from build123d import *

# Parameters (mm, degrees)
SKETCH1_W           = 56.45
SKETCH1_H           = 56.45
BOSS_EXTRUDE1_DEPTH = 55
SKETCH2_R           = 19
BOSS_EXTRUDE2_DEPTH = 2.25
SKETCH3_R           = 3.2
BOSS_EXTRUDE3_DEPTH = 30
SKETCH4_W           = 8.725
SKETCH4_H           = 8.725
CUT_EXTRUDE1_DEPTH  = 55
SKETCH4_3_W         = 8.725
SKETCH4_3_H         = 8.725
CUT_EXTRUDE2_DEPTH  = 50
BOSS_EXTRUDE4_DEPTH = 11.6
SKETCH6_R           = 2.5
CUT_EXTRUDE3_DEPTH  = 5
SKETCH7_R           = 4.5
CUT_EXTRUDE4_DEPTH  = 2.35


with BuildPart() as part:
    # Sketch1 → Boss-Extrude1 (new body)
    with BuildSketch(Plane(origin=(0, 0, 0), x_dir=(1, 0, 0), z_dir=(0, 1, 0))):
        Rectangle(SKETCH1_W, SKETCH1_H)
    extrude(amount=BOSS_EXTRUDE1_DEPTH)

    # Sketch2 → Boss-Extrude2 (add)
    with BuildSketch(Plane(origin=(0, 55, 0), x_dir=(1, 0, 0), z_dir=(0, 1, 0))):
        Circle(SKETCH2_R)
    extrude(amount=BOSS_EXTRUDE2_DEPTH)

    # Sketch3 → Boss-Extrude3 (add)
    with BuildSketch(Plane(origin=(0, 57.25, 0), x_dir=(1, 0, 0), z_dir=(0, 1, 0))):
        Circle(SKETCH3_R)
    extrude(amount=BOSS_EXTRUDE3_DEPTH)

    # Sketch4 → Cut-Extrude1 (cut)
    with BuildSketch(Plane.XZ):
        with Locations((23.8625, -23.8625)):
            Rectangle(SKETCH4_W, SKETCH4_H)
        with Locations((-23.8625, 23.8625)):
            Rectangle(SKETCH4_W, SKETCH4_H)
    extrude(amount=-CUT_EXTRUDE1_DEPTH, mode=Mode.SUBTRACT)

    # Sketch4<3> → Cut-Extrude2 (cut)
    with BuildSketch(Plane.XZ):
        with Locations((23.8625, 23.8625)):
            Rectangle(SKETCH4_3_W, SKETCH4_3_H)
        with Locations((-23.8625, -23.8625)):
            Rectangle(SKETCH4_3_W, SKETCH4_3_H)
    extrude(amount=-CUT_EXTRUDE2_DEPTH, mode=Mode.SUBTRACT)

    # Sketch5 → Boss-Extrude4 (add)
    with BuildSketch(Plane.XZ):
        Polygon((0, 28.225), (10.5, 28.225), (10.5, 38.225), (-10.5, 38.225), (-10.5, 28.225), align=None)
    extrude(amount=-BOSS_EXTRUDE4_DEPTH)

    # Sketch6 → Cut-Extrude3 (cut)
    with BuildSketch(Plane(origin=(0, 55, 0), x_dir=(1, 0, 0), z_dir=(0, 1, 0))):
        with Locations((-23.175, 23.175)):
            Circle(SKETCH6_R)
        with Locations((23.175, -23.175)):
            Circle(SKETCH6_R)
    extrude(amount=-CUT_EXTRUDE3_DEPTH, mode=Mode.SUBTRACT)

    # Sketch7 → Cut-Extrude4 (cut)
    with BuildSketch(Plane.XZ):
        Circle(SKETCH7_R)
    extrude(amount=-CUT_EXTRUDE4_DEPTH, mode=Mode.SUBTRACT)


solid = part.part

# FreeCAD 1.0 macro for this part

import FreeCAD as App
import Part
import Sketcher
Q = App.Units.Quantity

doc = App.newDocument("Part")
body = doc.addObject("PartDesign::Body", "Body")

# Sketch on XZ plane
sketch1 = body.newObject("Sketcher::SketchObject", "Sketch")
sketch1.AttachmentSupport = (doc.getObject("XZ_Plane"), [""])
sketch1.MapMode = "FlatFace"
sketch1.addGeometry(Part.LineSegment(App.Vector(-28, -28, 0), App.Vector(-28, 28, 0)), False)
sketch1.addGeometry(Part.LineSegment(App.Vector(-28, 28, 0), App.Vector(28, 28, 0)), False)
sketch1.addGeometry(Part.LineSegment(App.Vector(28, 28, 0), App.Vector(28, -28, 0)), False)
sketch1.addGeometry(Part.LineSegment(App.Vector(28, -28, 0), App.Vector(-28, -28, 0)), False)
sketch1.addConstraint(Sketcher.Constraint("Coincident", 0, 2, 1, 1))
sketch1.addConstraint(Sketcher.Constraint("Coincident", 1, 2, 2, 1))
sketch1.addConstraint(Sketcher.Constraint("Coincident", 2, 2, 3, 1))
sketch1.addConstraint(Sketcher.Constraint("Coincident", 3, 2, 0, 1))
sketch1.addConstraint(Sketcher.Constraint("Vertical", 0))
sketch1.addConstraint(Sketcher.Constraint("Horizontal", 1))
sketch1.addConstraint(Sketcher.Constraint("Vertical", 2))
sketch1.addConstraint(Sketcher.Constraint("Horizontal", 3))
sketch1.addConstraint(Sketcher.Constraint("Symmetric", 0, 2, 2, 2, -1, 1))
sketch1.addConstraint(Sketcher.Constraint("Equal", 3, 0))
sketch1.addConstraint(Sketcher.Constraint("DistanceX", 1, 1, 1, 2, Q("56.45 mm")))
pad1 = body.newObject("PartDesign::Pad", "Pad")
pad1.Profile = sketch1
pad1.Length = 55
pad1.Reversed = True

# Sketch on XZ plane
sketch2 = body.newObject("Sketcher::SketchObject", "Sketch001")
sketch2.AttachmentSupport = (doc.getObject("XZ_Plane"), [""])
sketch2.MapMode = "FlatFace"
sketch2.AttachmentOffset = App.Placement(App.Vector(0, 0, -55), App.Rotation())
sketch2.addGeometry(Part.Circle(App.Vector(0, 0, 0), App.Vector(0, 0, 1), 19), False)
sketch2.addConstraint(Sketcher.Constraint("Coincident", 0, 3, -1, 1))
sketch2.addConstraint(Sketcher.Constraint("Diameter", 0, Q("38 mm")))
pad2 = body.newObject("PartDesign::Pad", "Pad001")
pad2.Profile = sketch2
pad2.Length = 2.25
pad2.Reversed = True

# Sketch on XZ plane
sketch3 = body.newObject("Sketcher::SketchObject", "Sketch002")
sketch3.AttachmentSupport = (doc.getObject("XZ_Plane"), [""])
sketch3.MapMode = "FlatFace"
sketch3.AttachmentOffset = App.Placement(App.Vector(0, 0, -57.25), App.Rotation())
sketch3.addGeometry(Part.Circle(App.Vector(0, 0, 0), App.Vector(0, 0, 1), 3.2), False)
sketch3.addConstraint(Sketcher.Constraint("Coincident", 0, 3, -1, 1))
sketch3.addConstraint(Sketcher.Constraint("Diameter", 0, Q("6.4 mm")))
pad3 = body.newObject("PartDesign::Pad", "Pad002")
pad3.Profile = sketch3
pad3.Length = 30
pad3.Reversed = True

# Sketch on XZ plane
sketch4 = body.newObject("Sketcher::SketchObject", "Sketch003")
sketch4.AttachmentSupport = (doc.getObject("XZ_Plane"), [""])
sketch4.MapMode = "FlatFace"
sketch4.addGeometry(Part.LineSegment(App.Vector(20, -20, 0), App.Vector(20, -28, 0)), False)
sketch4.addGeometry(Part.LineSegment(App.Vector(20, -28, 0), App.Vector(28, -28, 0)), False)
sketch4.addGeometry(Part.LineSegment(App.Vector(28, -28, 0), App.Vector(28, -20, 0)), False)
sketch4.addGeometry(Part.LineSegment(App.Vector(28, -20, 0), App.Vector(20, -20, 0)), False)
sketch4.addGeometry(Part.LineSegment(App.Vector(-28, 28, 0), App.Vector(-28, 20, 0)), False)
sketch4.addGeometry(Part.LineSegment(App.Vector(-28, 20, 0), App.Vector(-20, 20, 0)), False)
sketch4.addGeometry(Part.LineSegment(App.Vector(-20, 20, 0), App.Vector(-20, 28, 0)), False)
sketch4.addGeometry(Part.LineSegment(App.Vector(-20, 28, 0), App.Vector(-28, 28, 0)), False)
sketch4.addConstraint(Sketcher.Constraint("Coincident", 0, 2, 1, 1))
sketch4.addConstraint(Sketcher.Constraint("Coincident", 1, 2, 2, 1))
sketch4.addConstraint(Sketcher.Constraint("Coincident", 2, 2, 3, 1))
sketch4.addConstraint(Sketcher.Constraint("Coincident", 3, 2, 0, 1))
sketch4.addConstraint(Sketcher.Constraint("Coincident", 4, 2, 5, 1))
sketch4.addConstraint(Sketcher.Constraint("Coincident", 5, 2, 6, 1))
sketch4.addConstraint(Sketcher.Constraint("Coincident", 6, 2, 7, 1))
sketch4.addConstraint(Sketcher.Constraint("Coincident", 7, 2, 4, 1))
sketch4.addConstraint(Sketcher.Constraint("Vertical", 0))
sketch4.addConstraint(Sketcher.Constraint("Horizontal", 1))
sketch4.addConstraint(Sketcher.Constraint("Vertical", 2))
sketch4.addConstraint(Sketcher.Constraint("Horizontal", 3))
sketch4.addConstraint(Sketcher.Constraint("Vertical", 4))
sketch4.addConstraint(Sketcher.Constraint("Horizontal", 5))
sketch4.addConstraint(Sketcher.Constraint("Vertical", 6))
sketch4.addConstraint(Sketcher.Constraint("Horizontal", 7))
sketch4.addConstraint(Sketcher.Constraint("Symmetric", 2, 2, 4, 2, -1, 1))
sketch4.addConstraint(Sketcher.Constraint("Symmetric", 0, 2, 6, 2, -1, 1))
sketch4.addConstraint(Sketcher.Constraint("Equal", 7, 0))
sketch4.addConstraint(Sketcher.Constraint("DistanceY", 3, 2, 4, 2, Q("39 mm")))
sketch4.addConstraint(Sketcher.Constraint("DistanceX", 5, 2, 3, 2, Q("39 mm")))
sketch4.addConstraint(Sketcher.Constraint("DistanceX", 1, 1, 1, 2, Q("8.725 mm")))
pocket1 = body.newObject("PartDesign::Pocket", "Pocket")
pocket1.Profile = sketch4
pocket1.Length = 55

# Sketch on XZ plane
sketch5 = body.newObject("Sketcher::SketchObject", "Sketch004")
sketch5.AttachmentSupport = (doc.getObject("XZ_Plane"), [""])
sketch5.MapMode = "FlatFace"
sketch5.addGeometry(Part.LineSegment(App.Vector(20, 28, 0), App.Vector(20, 20, 0)), False)
sketch5.addGeometry(Part.LineSegment(App.Vector(20, 20, 0), App.Vector(28, 20, 0)), False)
sketch5.addGeometry(Part.LineSegment(App.Vector(28, 20, 0), App.Vector(28, 28, 0)), False)
sketch5.addGeometry(Part.LineSegment(App.Vector(28, 28, 0), App.Vector(20, 28, 0)), False)
sketch5.addGeometry(Part.LineSegment(App.Vector(-28, -20, 0), App.Vector(-28, -28, 0)), False)
sketch5.addGeometry(Part.LineSegment(App.Vector(-28, -28, 0), App.Vector(-20, -28, 0)), False)
sketch5.addGeometry(Part.LineSegment(App.Vector(-20, -28, 0), App.Vector(-20, -20, 0)), False)
sketch5.addGeometry(Part.LineSegment(App.Vector(-20, -20, 0), App.Vector(-28, -20, 0)), False)
sketch5.addConstraint(Sketcher.Constraint("Coincident", 0, 2, 1, 1))
sketch5.addConstraint(Sketcher.Constraint("Coincident", 1, 2, 2, 1))
sketch5.addConstraint(Sketcher.Constraint("Coincident", 2, 2, 3, 1))
sketch5.addConstraint(Sketcher.Constraint("Coincident", 3, 2, 0, 1))
sketch5.addConstraint(Sketcher.Constraint("Coincident", 4, 2, 5, 1))
sketch5.addConstraint(Sketcher.Constraint("Coincident", 5, 2, 6, 1))
sketch5.addConstraint(Sketcher.Constraint("Coincident", 6, 2, 7, 1))
sketch5.addConstraint(Sketcher.Constraint("Coincident", 7, 2, 4, 1))
sketch5.addConstraint(Sketcher.Constraint("Vertical", 0))
sketch5.addConstraint(Sketcher.Constraint("Horizontal", 1))
sketch5.addConstraint(Sketcher.Constraint("Vertical", 2))
sketch5.addConstraint(Sketcher.Constraint("Horizontal", 3))
sketch5.addConstraint(Sketcher.Constraint("Vertical", 4))
sketch5.addConstraint(Sketcher.Constraint("Horizontal", 5))
sketch5.addConstraint(Sketcher.Constraint("Vertical", 6))
sketch5.addConstraint(Sketcher.Constraint("Horizontal", 7))
sketch5.addConstraint(Sketcher.Constraint("Symmetric", 2, 2, 4, 2, -1, 1))
sketch5.addConstraint(Sketcher.Constraint("Symmetric", 0, 2, 6, 2, -1, 1))
sketch5.addConstraint(Sketcher.Constraint("Equal", 7, 0))
sketch5.addConstraint(Sketcher.Constraint("DistanceX", 5, 2, 0, 2, Q("39 mm")))
sketch5.addConstraint(Sketcher.Constraint("DistanceY", 6, 2, 0, 2, Q("39 mm")))
sketch5.addConstraint(Sketcher.Constraint("DistanceX", 1, 1, 1, 2, Q("8.725 mm")))
pocket2 = body.newObject("PartDesign::Pocket", "Pocket001")
pocket2.Profile = sketch5
pocket2.Length = 50

# Sketch on XZ plane
sketch6 = body.newObject("Sketcher::SketchObject", "Sketch005")
sketch6.AttachmentSupport = (doc.getObject("XZ_Plane"), [""])
sketch6.MapMode = "FlatFace"
sketch6.addGeometry(Part.LineSegment(App.Vector(10, 28, 0), App.Vector(10, 38, 0)), False)
sketch6.addGeometry(Part.LineSegment(App.Vector(10, 38, 0), App.Vector(-10, 38, 0)), False)
sketch6.addGeometry(Part.LineSegment(App.Vector(-10, 38, 0), App.Vector(-10, 28, 0)), False)
sketch6.addGeometry(Part.LineSegment(App.Vector(-10, 28, 0), App.Vector(10, 28, 0)), False)
sketch6.addConstraint(Sketcher.Constraint("Coincident", 0, 2, 1, 1))
sketch6.addConstraint(Sketcher.Constraint("Coincident", 1, 2, 2, 1))
sketch6.addConstraint(Sketcher.Constraint("Coincident", 2, 2, 3, 1))
sketch6.addConstraint(Sketcher.Constraint("Coincident", 3, 2, 0, 1))
sketch6.addConstraint(Sketcher.Constraint("Vertical", 0))
sketch6.addConstraint(Sketcher.Constraint("Horizontal", 1))
sketch6.addConstraint(Sketcher.Constraint("Vertical", 2))
sketch6.addConstraint(Sketcher.Constraint("Horizontal", 3))
sketch6.addConstraint(Sketcher.Constraint("DistanceX", 1, 2, 1, 1, Q("21 mm")))
sketch6.addConstraint(Sketcher.Constraint("DistanceY", 0, 1, 0, 2, Q("10 mm")))
sketch6.addConstraint(Sketcher.Constraint("DistanceX", -1, 1, 0, 2, Q("10.5 mm")))
sketch6.addConstraint(Sketcher.Constraint("DistanceY", -1, 1, 0, 2, Q("38.225 mm")))
pad4 = body.newObject("PartDesign::Pad", "Pad003")
pad4.Profile = sketch6
pad4.Length = 11.6
pad4.Reversed = True

# Sketch on XZ plane
sketch7 = body.newObject("Sketcher::SketchObject", "Sketch006")
sketch7.AttachmentSupport = (doc.getObject("XZ_Plane"), [""])
sketch7.MapMode = "FlatFace"
sketch7.AttachmentOffset = App.Placement(App.Vector(0, 0, -55), App.Rotation())
sketch7.addGeometry(Part.Circle(App.Vector(-23.2, -23.2, 0), App.Vector(0, 0, 1), 2.5), False)
sketch7.addGeometry(Part.Circle(App.Vector(23.2, 23.2, 0), App.Vector(0, 0, 1), 2.5), False)
sketch7.addConstraint(Sketcher.Constraint("Equal", 0, 1))
sketch7.addConstraint(Sketcher.Constraint("Symmetric", 0, 3, 1, 3, -1, 1))
sketch7.addConstraint(Sketcher.Constraint("Diameter", 0, Q("5 mm")))
sketch7.addConstraint(Sketcher.Constraint("DistanceX", 0, 3, 1, 3, Q("46.35 mm")))
sketch7.addConstraint(Sketcher.Constraint("DistanceY", 0, 3, 1, 3, Q("46.35 mm")))
pocket3 = body.newObject("PartDesign::Pocket", "Pocket002")
pocket3.Profile = sketch7
pocket3.Length = 5
pocket3.Reversed = True

# Sketch on XZ plane
sketch8 = body.newObject("Sketcher::SketchObject", "Sketch007")
sketch8.AttachmentSupport = (doc.getObject("XZ_Plane"), [""])
sketch8.MapMode = "FlatFace"
sketch8.addGeometry(Part.Circle(App.Vector(0, 0, 0), App.Vector(0, 0, 1), 4.5), False)
sketch8.addConstraint(Sketcher.Constraint("Coincident", 0, 3, -1, 1))
sketch8.addConstraint(Sketcher.Constraint("Diameter", 0, Q("9 mm")))
pocket4 = body.newObject("PartDesign::Pocket", "Pocket003")
pocket4.Profile = sketch8
pocket4.Length = 2.35

doc.recompute()
